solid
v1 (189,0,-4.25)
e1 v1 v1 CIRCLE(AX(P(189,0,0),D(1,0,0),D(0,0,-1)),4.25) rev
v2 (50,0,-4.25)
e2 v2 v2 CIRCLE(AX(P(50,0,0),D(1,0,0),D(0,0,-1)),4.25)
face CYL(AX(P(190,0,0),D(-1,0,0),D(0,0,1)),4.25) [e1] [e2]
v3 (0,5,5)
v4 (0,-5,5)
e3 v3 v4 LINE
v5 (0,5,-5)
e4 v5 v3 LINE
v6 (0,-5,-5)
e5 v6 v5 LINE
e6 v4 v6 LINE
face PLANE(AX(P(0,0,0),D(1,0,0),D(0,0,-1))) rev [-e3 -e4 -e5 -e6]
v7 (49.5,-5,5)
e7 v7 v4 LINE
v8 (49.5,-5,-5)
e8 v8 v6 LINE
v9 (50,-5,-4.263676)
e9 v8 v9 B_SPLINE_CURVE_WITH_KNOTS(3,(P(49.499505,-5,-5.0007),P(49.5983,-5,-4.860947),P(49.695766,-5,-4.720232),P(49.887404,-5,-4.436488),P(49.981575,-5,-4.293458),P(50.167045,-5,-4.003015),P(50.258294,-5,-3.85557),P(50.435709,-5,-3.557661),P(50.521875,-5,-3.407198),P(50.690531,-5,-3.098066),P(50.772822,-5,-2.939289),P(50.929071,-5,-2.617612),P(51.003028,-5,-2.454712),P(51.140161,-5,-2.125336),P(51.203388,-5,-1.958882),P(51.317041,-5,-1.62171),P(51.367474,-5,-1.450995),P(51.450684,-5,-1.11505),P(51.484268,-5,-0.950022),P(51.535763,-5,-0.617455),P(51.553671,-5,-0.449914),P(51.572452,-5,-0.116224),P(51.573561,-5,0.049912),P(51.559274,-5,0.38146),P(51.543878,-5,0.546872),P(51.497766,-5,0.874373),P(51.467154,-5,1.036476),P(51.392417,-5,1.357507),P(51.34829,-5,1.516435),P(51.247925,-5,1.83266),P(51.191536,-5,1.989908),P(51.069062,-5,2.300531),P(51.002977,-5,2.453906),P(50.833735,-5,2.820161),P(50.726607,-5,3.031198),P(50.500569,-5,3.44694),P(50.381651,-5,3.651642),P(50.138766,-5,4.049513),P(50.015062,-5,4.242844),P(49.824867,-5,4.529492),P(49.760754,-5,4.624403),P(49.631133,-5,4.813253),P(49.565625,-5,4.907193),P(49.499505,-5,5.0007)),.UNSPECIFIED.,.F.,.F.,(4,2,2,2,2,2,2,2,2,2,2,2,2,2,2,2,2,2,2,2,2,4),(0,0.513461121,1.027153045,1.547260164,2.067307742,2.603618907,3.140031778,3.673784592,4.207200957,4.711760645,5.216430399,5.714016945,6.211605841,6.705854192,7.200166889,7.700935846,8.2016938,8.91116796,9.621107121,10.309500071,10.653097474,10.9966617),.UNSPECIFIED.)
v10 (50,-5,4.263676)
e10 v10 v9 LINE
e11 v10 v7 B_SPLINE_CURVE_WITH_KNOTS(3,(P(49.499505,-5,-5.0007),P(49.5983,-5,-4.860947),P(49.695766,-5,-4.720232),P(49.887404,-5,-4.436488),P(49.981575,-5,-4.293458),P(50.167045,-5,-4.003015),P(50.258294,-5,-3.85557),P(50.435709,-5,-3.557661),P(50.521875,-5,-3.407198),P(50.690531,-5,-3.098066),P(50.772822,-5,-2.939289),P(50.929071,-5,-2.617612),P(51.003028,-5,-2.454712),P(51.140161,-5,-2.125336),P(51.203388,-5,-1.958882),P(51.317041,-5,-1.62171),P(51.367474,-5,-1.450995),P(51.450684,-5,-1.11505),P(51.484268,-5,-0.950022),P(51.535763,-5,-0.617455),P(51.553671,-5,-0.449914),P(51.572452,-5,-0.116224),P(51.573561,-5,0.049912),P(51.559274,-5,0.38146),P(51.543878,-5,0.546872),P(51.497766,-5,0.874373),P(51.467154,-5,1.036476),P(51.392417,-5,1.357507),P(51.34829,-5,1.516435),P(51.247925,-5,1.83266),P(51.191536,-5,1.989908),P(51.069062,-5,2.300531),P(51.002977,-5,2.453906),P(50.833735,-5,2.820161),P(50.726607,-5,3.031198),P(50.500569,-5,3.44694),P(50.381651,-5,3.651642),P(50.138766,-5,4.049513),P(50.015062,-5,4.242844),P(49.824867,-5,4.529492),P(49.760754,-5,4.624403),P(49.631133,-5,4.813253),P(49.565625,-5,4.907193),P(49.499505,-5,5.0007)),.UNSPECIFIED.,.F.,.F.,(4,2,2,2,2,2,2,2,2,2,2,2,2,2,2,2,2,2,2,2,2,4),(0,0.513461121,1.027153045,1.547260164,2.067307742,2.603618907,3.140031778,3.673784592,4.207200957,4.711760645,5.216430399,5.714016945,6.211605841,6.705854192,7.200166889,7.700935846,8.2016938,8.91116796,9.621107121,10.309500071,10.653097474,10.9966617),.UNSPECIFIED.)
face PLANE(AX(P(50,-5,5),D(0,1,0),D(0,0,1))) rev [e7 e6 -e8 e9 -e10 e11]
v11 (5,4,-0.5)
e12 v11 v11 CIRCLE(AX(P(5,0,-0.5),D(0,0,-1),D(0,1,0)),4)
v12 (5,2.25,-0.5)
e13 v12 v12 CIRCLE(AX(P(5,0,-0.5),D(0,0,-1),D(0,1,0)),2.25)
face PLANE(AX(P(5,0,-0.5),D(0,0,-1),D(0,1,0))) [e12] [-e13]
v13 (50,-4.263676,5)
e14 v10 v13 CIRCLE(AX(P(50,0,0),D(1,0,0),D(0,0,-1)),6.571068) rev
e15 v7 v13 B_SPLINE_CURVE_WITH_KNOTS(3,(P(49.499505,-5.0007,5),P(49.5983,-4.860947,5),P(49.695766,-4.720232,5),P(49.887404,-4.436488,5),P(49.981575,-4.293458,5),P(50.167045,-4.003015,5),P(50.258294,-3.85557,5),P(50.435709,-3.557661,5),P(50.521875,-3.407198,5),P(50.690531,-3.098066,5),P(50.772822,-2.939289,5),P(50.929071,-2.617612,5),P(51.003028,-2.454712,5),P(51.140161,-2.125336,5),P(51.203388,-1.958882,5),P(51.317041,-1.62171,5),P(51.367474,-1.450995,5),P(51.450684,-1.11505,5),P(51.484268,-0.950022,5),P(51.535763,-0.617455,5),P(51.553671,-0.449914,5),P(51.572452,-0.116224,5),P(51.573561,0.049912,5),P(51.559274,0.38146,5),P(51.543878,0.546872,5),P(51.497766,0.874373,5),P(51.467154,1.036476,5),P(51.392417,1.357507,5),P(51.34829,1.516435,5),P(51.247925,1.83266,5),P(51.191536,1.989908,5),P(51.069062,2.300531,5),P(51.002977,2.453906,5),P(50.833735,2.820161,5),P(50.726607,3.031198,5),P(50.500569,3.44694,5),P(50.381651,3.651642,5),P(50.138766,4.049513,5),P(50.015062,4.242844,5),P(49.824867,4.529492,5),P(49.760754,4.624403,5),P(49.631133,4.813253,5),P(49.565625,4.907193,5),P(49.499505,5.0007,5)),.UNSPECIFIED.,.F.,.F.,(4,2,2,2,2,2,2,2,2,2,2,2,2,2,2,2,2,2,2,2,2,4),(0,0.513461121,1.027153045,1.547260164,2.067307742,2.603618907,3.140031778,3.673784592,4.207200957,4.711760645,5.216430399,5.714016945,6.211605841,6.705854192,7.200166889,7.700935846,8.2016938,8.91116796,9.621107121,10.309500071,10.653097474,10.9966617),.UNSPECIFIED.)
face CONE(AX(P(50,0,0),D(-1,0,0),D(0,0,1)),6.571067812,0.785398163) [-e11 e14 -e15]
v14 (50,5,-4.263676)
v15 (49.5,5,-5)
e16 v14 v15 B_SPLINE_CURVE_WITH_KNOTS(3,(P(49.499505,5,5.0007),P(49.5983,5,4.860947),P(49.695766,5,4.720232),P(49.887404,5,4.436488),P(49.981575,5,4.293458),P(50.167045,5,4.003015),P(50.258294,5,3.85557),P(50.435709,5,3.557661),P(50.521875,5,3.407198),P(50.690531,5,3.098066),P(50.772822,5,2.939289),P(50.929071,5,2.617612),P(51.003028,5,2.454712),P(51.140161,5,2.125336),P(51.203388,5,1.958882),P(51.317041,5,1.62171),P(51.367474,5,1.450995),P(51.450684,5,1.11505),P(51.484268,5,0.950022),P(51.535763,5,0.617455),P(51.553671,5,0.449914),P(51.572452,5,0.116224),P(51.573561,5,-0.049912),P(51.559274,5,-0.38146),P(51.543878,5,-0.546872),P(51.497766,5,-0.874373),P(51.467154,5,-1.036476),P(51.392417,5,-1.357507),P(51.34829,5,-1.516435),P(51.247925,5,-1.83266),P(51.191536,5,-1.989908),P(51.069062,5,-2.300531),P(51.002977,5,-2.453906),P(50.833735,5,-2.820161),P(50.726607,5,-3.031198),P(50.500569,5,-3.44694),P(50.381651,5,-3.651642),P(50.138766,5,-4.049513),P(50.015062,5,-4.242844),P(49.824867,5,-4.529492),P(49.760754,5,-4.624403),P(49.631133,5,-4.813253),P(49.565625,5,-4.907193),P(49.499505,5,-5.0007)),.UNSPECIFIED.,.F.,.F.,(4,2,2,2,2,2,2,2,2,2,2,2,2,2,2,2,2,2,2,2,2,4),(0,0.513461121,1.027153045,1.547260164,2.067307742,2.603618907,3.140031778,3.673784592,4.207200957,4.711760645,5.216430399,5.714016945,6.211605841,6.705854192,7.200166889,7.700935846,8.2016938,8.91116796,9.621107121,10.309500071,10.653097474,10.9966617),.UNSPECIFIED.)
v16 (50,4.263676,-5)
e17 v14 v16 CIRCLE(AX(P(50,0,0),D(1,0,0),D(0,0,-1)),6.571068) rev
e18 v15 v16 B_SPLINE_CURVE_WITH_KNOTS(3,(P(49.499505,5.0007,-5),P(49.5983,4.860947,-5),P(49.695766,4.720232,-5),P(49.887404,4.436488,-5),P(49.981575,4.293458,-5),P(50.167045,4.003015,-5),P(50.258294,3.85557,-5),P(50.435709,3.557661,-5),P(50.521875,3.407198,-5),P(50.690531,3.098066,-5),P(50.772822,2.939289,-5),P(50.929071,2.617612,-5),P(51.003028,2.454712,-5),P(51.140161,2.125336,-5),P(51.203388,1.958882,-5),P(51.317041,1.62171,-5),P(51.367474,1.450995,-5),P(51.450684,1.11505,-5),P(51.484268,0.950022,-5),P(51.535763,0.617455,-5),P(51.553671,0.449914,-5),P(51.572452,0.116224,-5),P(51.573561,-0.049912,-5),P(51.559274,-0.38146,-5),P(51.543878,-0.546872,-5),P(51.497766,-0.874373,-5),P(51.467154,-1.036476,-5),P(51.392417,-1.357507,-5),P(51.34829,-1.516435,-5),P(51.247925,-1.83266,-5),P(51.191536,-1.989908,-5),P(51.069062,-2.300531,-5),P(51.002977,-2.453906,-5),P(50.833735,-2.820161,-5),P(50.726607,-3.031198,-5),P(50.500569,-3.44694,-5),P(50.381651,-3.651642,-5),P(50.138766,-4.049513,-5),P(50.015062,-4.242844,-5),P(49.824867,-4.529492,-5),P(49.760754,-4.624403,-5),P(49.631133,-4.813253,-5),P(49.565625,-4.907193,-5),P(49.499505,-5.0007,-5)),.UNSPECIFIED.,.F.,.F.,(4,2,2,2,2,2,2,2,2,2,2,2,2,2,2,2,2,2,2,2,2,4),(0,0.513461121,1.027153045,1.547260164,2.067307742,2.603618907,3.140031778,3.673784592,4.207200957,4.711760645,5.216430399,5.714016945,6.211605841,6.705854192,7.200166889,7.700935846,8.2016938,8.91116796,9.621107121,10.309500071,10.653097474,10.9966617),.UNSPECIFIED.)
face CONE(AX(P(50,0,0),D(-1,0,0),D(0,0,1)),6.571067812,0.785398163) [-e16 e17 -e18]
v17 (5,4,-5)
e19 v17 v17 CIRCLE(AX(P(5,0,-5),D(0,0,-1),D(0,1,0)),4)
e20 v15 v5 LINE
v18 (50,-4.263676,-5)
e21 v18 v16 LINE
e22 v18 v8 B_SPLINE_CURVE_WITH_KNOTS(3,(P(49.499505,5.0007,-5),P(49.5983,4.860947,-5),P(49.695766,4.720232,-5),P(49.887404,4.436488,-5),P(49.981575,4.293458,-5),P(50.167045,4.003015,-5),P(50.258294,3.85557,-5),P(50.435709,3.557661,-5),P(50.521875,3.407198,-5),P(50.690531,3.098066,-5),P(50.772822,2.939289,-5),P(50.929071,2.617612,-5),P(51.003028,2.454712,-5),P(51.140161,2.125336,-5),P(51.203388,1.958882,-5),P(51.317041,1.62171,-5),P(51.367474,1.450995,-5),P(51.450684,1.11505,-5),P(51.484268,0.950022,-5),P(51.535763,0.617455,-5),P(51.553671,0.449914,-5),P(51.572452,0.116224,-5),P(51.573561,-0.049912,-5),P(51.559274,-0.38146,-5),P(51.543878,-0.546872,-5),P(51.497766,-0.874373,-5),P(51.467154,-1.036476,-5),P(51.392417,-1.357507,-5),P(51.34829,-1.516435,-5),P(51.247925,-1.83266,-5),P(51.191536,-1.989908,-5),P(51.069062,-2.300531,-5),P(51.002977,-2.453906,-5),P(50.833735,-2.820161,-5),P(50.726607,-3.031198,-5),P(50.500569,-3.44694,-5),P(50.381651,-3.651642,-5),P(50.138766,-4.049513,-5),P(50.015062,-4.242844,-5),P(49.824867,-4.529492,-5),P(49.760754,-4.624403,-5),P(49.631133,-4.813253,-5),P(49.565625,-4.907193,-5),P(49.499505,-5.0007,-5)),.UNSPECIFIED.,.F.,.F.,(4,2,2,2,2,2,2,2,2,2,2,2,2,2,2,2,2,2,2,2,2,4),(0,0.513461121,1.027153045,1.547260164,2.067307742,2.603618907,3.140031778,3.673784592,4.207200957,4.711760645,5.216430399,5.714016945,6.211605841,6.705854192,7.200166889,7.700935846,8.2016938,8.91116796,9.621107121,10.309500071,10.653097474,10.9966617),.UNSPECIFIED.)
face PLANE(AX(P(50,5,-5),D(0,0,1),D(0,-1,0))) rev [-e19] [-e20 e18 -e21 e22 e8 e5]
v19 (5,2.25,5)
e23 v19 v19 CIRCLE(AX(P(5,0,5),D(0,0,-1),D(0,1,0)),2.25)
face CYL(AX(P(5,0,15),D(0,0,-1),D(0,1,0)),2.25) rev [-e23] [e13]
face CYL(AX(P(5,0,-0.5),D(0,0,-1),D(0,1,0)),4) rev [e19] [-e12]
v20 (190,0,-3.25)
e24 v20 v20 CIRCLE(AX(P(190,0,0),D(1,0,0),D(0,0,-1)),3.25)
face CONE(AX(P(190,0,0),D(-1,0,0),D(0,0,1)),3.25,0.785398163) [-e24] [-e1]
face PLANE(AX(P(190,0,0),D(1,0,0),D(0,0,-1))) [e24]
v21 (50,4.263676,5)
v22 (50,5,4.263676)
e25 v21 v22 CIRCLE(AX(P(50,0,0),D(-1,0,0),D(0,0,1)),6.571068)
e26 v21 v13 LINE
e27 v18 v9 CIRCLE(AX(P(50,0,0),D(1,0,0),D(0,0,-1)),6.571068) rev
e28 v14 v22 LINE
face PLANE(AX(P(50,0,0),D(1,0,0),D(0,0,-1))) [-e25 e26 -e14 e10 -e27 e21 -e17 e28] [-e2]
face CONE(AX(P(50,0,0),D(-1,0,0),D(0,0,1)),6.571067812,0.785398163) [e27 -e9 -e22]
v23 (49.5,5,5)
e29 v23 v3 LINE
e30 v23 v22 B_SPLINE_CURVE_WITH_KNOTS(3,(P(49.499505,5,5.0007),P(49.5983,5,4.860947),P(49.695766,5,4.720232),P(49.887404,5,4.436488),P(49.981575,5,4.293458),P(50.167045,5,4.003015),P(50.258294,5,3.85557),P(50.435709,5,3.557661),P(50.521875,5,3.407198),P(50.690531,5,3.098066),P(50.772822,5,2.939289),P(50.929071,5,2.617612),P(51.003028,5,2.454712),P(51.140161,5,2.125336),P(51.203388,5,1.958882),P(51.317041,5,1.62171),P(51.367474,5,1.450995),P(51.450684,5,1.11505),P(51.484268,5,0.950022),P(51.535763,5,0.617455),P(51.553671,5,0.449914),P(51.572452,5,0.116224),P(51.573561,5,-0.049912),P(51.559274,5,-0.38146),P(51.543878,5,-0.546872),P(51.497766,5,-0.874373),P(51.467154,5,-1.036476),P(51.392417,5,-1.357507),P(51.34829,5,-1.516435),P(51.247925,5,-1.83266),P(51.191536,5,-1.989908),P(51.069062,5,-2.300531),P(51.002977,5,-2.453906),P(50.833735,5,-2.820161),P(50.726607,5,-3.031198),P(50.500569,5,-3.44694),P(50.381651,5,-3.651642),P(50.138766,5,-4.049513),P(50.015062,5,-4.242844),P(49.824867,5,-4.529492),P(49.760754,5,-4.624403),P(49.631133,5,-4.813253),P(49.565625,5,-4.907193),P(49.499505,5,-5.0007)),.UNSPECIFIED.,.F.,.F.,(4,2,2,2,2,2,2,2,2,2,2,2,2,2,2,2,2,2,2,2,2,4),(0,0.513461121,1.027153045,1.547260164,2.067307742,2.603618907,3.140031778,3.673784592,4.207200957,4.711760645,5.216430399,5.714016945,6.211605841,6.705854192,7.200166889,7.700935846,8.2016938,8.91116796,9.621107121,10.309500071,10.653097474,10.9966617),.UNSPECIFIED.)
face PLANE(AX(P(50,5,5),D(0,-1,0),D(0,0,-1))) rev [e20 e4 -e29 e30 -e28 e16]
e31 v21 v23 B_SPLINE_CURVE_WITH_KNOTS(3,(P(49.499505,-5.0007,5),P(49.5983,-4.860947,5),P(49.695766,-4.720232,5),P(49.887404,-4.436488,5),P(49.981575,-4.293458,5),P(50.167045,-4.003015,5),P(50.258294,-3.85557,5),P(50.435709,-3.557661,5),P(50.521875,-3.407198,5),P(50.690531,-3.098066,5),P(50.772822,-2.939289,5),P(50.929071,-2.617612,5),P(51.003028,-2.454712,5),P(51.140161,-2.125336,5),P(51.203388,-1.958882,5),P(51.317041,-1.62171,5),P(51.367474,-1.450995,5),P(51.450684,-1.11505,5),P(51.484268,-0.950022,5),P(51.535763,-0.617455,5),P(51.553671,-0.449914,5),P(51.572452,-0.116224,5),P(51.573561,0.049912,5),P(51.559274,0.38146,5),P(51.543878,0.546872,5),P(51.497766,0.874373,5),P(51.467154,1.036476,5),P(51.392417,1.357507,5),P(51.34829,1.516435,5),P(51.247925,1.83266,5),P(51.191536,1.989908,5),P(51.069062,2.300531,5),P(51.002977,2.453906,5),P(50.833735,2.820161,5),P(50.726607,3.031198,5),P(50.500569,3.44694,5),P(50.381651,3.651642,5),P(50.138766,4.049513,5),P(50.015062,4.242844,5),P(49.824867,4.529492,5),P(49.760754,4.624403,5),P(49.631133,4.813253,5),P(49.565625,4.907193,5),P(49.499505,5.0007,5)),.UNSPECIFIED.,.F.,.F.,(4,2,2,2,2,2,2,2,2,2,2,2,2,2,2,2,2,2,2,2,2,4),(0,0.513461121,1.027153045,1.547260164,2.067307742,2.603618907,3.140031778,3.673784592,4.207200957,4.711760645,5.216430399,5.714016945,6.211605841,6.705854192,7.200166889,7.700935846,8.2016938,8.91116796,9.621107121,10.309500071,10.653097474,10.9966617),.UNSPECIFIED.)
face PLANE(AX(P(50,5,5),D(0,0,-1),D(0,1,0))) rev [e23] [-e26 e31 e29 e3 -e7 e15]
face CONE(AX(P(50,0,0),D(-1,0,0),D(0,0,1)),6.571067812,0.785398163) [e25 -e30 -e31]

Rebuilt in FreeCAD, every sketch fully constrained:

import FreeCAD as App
import Part
import Sketcher
from FreeCAD import Vector


def edges_at(feature, points):
    """Names of the edges that pass closest to the given points."""
    edges = feature.Shape.Edges
    near = lambda p: min(range(len(edges)), key=lambda i: edges[i].distToShape(Part.Vertex(*p))[0])
    return sorted({f"Edge{near(p) + 1}" for p in points})

doc = App.newDocument("Part")
body = doc.addObject("PartDesign::Body", "Body")

sketch1 = body.newObject("Sketcher::SketchObject", "Sketch")
sketch1.AttachmentSupport = (doc.getObject("YZ_Plane"), [""])
sketch1.MapMode = "FlatFace"
sketch1.addGeometry([
    Part.LineSegment(Vector(5, 5, 0), Vector(-5, 5, 0)),
    Part.LineSegment(Vector(-5, 5, 0), Vector(-5, -5, 0)),
    Part.LineSegment(Vector(-5, -5, 0), Vector(5, -5, 0)),
    Part.LineSegment(Vector(5, -5, 0), Vector(5, 5, 0)),
], False)
sketch1.addConstraint([
    Sketcher.Constraint("Coincident", 0, 2, 1, 1),
    Sketcher.Constraint("Coincident", 1, 2, 2, 1),
    Sketcher.Constraint("Coincident", 2, 2, 3, 1),
    Sketcher.Constraint("Coincident", 3, 2, 0, 1),
    Sketcher.Constraint("Horizontal", 0),
    Sketcher.Constraint("Vertical", 1),
    Sketcher.Constraint("Horizontal", 2),
    Sketcher.Constraint("Vertical", 3),
    Sketcher.Constraint("Symmetric", 0, 2, 2, 2, -1, 1),
    Sketcher.Constraint("Equal", 2, 1),
    Sketcher.Constraint("DistanceX", 0, 2, 0, 1, 10.0),
])
pad1 = body.newObject("PartDesign::Pad", "Pad")
pad1.Profile = sketch1
pad1.Length = 50

sketch2 = body.newObject("Sketcher::SketchObject", "Sketch001")
sketch2.AttachmentSupport = (doc.getObject("YZ_Plane"), [""])
sketch2.MapMode = "FlatFace"
sketch2.AttachmentOffset = App.Placement(Vector(0, 0, 50), App.Rotation())
sketch2.addGeometry(Part.Circle(Vector(0, 0, 0), Vector(0, 0, 1), 4.2), False)
sketch2.addConstraint([
    Sketcher.Constraint("Coincident", 0, 3, -1, 1),
    Sketcher.Constraint("Diameter", 0, 8.5),
])
pad2 = body.newObject("PartDesign::Pad", "Pad001")
pad2.Profile = sketch2
pad2.Length = 140
doc.recompute()

chamfer = body.newObject("PartDesign::Chamfer", "Chamfer")
chamfer.Base = (pad2, edges_at(pad2, [(190, 0, 4.25)]))
chamfer.Size = 1

sketch3 = body.newObject("Sketcher::SketchObject", "Sketch002")
sketch3.Placement = App.Placement(Vector(0, 0, 0), App.Rotation(Vector(-1, 0, 0), Vector(0, 0.707106781, -0.707106781), Vector(0, -0.707106781, -0.707106781), "ZXY"))
sketch3.addGeometry([
    Part.LineSegment(Vector(-50, 7.07, 0), Vector(-50, 6.57, 0)),
    Part.LineSegment(Vector(-50, 6.57, 0), Vector(-49.5, 7.07, 0)),
    Part.LineSegment(Vector(-49.5, 7.07, 0), Vector(-50, 7.07, 0)),
], False)
sketch3.addConstraint([
    Sketcher.Constraint("Coincident", 0, 2, 1, 1),
    Sketcher.Constraint("Coincident", 1, 2, 2, 1),
    Sketcher.Constraint("Coincident", 2, 2, 0, 1),
    Sketcher.Constraint("Vertical", 0),
    Sketcher.Constraint("Horizontal", 2),
    Sketcher.Constraint("Equal", 2, 0),
    Sketcher.Constraint("DistanceX", 2, 2, 2, 1, 0.5),
    Sketcher.Constraint("DistanceX", 0, 2, -1, 1, 50.0),
    Sketcher.Constraint("DistanceY", -1, 1, 0, 2, 6.571068),
])
groove = body.newObject("PartDesign::Groove", "Groove")
groove.Profile = sketch3
groove.ReferenceAxis = (sketch3, ["H_Axis"])
groove.Angle = 360

sketch4 = body.newObject("Sketcher::SketchObject", "Sketch003")
sketch4.AttachmentSupport = (doc.getObject("XY_Plane"), [""])
sketch4.MapMode = "FlatFace"
sketch4.AttachmentOffset = App.Placement(Vector(0, 0, -5), App.Rotation())
sketch4.addGeometry(Part.Circle(Vector(5, 0, 0), Vector(0, 0, 1), 4), False)
sketch4.addConstraint([
    Sketcher.Constraint("PointOnObject", 0, 3, -1),
    Sketcher.Constraint("Diameter", 0, 8.0),
    Sketcher.Constraint("DistanceX", -1, 1, 0, 3, 5.0),
])
pocket1 = body.newObject("PartDesign::Pocket", "Pocket")
pocket1.Profile = sketch4
pocket1.Length = 4.5
pocket1.Reversed = True

sketch5 = body.newObject("Sketcher::SketchObject", "Sketch004")
sketch5.AttachmentSupport = (doc.getObject("XY_Plane"), [""])
sketch5.MapMode = "FlatFace"
sketch5.AttachmentOffset = App.Placement(Vector(0, 0, -5), App.Rotation())
sketch5.addGeometry(Part.Circle(Vector(5, 0, 0), Vector(0, 0, 1), 2.2), False)
sketch5.addConstraint([
    Sketcher.Constraint("PointOnObject", 0, 3, -1),
    Sketcher.Constraint("Diameter", 0, 4.5),
    Sketcher.Constraint("DistanceX", -1, 1, 0, 3, 5.0),
])
pocket2 = body.newObject("PartDesign::Pocket", "Pocket001")
pocket2.Profile = sketch5
pocket2.Length = 20
pocket2.Reversed = True

doc.recompute()
